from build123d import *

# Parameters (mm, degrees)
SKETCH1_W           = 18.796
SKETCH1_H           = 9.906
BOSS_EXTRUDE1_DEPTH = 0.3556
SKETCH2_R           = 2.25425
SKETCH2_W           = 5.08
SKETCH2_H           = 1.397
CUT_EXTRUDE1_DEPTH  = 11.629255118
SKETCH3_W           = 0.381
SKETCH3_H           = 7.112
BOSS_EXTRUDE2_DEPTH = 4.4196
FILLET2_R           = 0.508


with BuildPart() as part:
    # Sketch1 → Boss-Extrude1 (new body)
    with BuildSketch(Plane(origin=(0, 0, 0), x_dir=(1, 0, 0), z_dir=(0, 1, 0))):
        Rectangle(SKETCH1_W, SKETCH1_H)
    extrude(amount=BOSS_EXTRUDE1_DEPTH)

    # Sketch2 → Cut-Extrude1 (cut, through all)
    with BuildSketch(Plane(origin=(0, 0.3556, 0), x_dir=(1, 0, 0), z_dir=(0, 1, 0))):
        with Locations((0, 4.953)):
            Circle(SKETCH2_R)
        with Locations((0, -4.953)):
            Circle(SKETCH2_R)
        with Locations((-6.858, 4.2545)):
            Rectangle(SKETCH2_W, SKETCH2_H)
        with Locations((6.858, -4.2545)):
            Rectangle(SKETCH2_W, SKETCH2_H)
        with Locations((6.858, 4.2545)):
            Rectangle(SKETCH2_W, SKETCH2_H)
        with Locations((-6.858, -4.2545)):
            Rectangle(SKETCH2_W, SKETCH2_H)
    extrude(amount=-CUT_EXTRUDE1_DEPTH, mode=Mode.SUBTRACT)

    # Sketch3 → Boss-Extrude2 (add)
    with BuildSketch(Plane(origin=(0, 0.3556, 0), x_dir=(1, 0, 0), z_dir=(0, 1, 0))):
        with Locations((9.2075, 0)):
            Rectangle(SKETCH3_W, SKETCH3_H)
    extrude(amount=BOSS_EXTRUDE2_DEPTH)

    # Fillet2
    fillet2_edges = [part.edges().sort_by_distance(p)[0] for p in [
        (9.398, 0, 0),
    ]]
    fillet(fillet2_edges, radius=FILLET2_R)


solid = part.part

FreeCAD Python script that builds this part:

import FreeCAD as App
import Part
import Sketcher
from FreeCAD import Vector
Q = App.Units.Quantity


def edges_at(feature, points):
    """Names of the edges that pass closest to the given points."""
    edges = feature.Shape.Edges
    near = lambda p: min(range(len(edges)), key=lambda i: edges[i].distToShape(Part.Vertex(*p))[0])
    return sorted({f"Edge{near(p) + 1}" for p in points})

doc = App.newDocument("Part")
body = doc.addObject("PartDesign::Body", "Body")

# Sketch on XZ plane
sketch1 = body.newObject("Sketcher::SketchObject", "Sketch")
sketch1.AttachmentSupport = (doc.getObject("XZ_Plane"), [""])
sketch1.MapMode = "FlatFace"
sketch1.addGeometry([
    Part.LineSegment(Vector(-9, -5, 0), Vector(-9, 5, 0)),
    Part.LineSegment(Vector(-9, 5, 0), Vector(9, 5, 0)),
    Part.LineSegment(Vector(9, 5, 0), Vector(9, -5, 0)),
    Part.LineSegment(Vector(9, -5, 0), Vector(-9, -5, 0)),
], False)
sketch1.addConstraint([
    Sketcher.Constraint("Coincident", 0, 2, 1, 1),
    Sketcher.Constraint("Coincident", 1, 2, 2, 1),
    Sketcher.Constraint("Coincident", 2, 2, 3, 1),
    Sketcher.Constraint("Coincident", 3, 2, 0, 1),
    Sketcher.Constraint("Vertical", 0),
    Sketcher.Constraint("Horizontal", 1),
    Sketcher.Constraint("Vertical", 2),
    Sketcher.Constraint("Horizontal", 3),
    Sketcher.Constraint("Symmetric", 0, 2, 2, 2, -1, 1),
    Sketcher.Constraint("DistanceX", 1, 1, 1, 2, Q("0.74 in")),
    Sketcher.Constraint("DistanceY", 0, 1, 0, 2, Q("0.39 in")),
])
pad1 = body.newObject("PartDesign::Pad", "Pad")
pad1.Profile = sketch1
pad1.Length = Q("0.014 in")
pad1.Reversed = True

# Sketch on XZ plane
sketch2 = body.newObject("Sketcher::SketchObject", "Sketch001")
sketch2.AttachmentSupport = (doc.getObject("XZ_Plane"), [""])
sketch2.MapMode = "FlatFace"
sketch2.AttachmentOffset = App.Placement(Vector(0, 0, -0.014 * 25.4), App.Rotation())
sketch2.addGeometry([
    Part.Circle(Vector(0, -5, 0), Vector(0, 0, 1), 2.3),  # 0
    Part.Circle(Vector(0, 5, 0), Vector(0, 0, 1), 2.3),  # 1
    Part.LineSegment(Vector(-9.4, -5, 0), Vector(-9.4, -3.6, 0)),  # 2
    Part.LineSegment(Vector(-9.4, -3.6, 0), Vector(-4.3, -3.6, 0)),  # 3
    Part.LineSegment(Vector(-4.3, -3.6, 0), Vector(-4.3, -5, 0)),  # 4
    Part.LineSegment(Vector(-4.3, -5, 0), Vector(-9.4, -5, 0)),  # 5
    Part.LineSegment(Vector(4.3, 3.6, 0), Vector(4.3, 5, 0)),  # 6
    Part.LineSegment(Vector(4.3, 5, 0), Vector(9.4, 5, 0)),  # 7
    Part.LineSegment(Vector(9.4, 5, 0), Vector(9.4, 3.6, 0)),  # 8
    Part.LineSegment(Vector(9.4, 3.6, 0), Vector(4.3, 3.6, 0)),  # 9
    Part.LineSegment(Vector(4.3, -5, 0), Vector(4.3, -3.6, 0)),  # 10
    Part.LineSegment(Vector(4.3, -3.6, 0), Vector(9.4, -3.6, 0)),  # 11
    Part.LineSegment(Vector(9.4, -3.6, 0), Vector(9.4, -5, 0)),  # 12
    Part.LineSegment(Vector(9.4, -5, 0), Vector(4.3, -5, 0)),  # 13
    Part.LineSegment(Vector(-9.4, 3.6, 0), Vector(-9.4, 5, 0)),  # 14
    Part.LineSegment(Vector(-9.4, 5, 0), Vector(-4.3, 5, 0)),  # 15
    Part.LineSegment(Vector(-4.3, 5, 0), Vector(-4.3, 3.6, 0)),  # 16
    Part.LineSegment(Vector(-4.3, 3.6, 0), Vector(-9.4, 3.6, 0)),  # 17
], False)
sketch2.addConstraint([
    Sketcher.Constraint("Coincident", 2, 2, 3, 1),
    Sketcher.Constraint("Coincident", 3, 2, 4, 1),
    Sketcher.Constraint("Coincident", 4, 2, 5, 1),
    Sketcher.Constraint("Coincident", 5, 2, 2, 1),
    Sketcher.Constraint("Coincident", 6, 2, 7, 1),
    Sketcher.Constraint("Coincident", 7, 2, 8, 1),
    Sketcher.Constraint("Coincident", 8, 2, 9, 1),
    Sketcher.Constraint("Coincident", 9, 2, 6, 1),
    Sketcher.Constraint("Coincident", 10, 2, 11, 1),
    Sketcher.Constraint("Coincident", 11, 2, 12, 1),
    Sketcher.Constraint("Coincident", 12, 2, 13, 1),
    Sketcher.Constraint("Coincident", 13, 2, 10, 1),
    Sketcher.Constraint("Coincident", 14, 2, 15, 1),
    Sketcher.Constraint("Coincident", 15, 2, 16, 1),
    Sketcher.Constraint("Coincident", 16, 2, 17, 1),
    Sketcher.Constraint("Coincident", 17, 2, 14, 1),
    Sketcher.Constraint("Vertical", 2),
    Sketcher.Constraint("Horizontal", 3),
    Sketcher.Constraint("Vertical", 4),
    Sketcher.Constraint("Horizontal", 5),
    Sketcher.Constraint("Vertical", 6),
    Sketcher.Constraint("Horizontal", 7),
    Sketcher.Constraint("Vertical", 8),
    Sketcher.Constraint("Horizontal", 9),
    Sketcher.Constraint("Vertical", 10),
    Sketcher.Constraint("Horizontal", 11),
    Sketcher.Constraint("Vertical", 12),
    Sketcher.Constraint("Horizontal", 13),
    Sketcher.Constraint("Vertical", 14),
    Sketcher.Constraint("Horizontal", 15),
    Sketcher.Constraint("Vertical", 16),
    Sketcher.Constraint("Horizontal", 17),
    Sketcher.Constraint("Equal", 0, 1),
    Sketcher.Constraint("Symmetric", 0, 3, 1, 3, -1, 1),
    Sketcher.Constraint("Symmetric", 4, 2, 6, 2, -1, 1),
    Sketcher.Constraint("Symmetric", 2, 2, 8, 2, -1, 1),
    Sketcher.Constraint("Symmetric", 12, 2, 14, 2, -1, 1),
    Sketcher.Constraint("Symmetric", 10, 2, 16, 2, -1, 1),
    Sketcher.Constraint("Symmetric", 3, 2, 10, 2, -2),
    Sketcher.Constraint("Symmetric", 5, 2, 12, 2, -2),
    Sketcher.Constraint("PointOnObject", 0, 3, -2),
    Sketcher.Constraint("Horizontal", 0, 3, 4, 2),
    Sketcher.Constraint("DistanceX", 3, 1, 3, 2, Q("0.2 in")),
    Sketcher.Constraint("Diameter", 0, Q("0.1775 in")),
    Sketcher.Constraint("DistanceY", 2, 1, 2, 2, Q("0.055 in")),
    Sketcher.Constraint("DistanceX", 2, 2, -1, 1, Q("0.37 in")),
    Sketcher.Constraint("DistanceY", 2, 2, -1, 1, Q("0.14 in")),
])
pocket1 = body.newObject("PartDesign::Pocket", "Pocket")
pocket1.Profile = sketch2
pocket1.Type = "ThroughAll"
pocket1.Reversed = True

# Sketch on XZ plane
sketch3 = body.newObject("Sketcher::SketchObject", "Sketch002")
sketch3.AttachmentSupport = (doc.getObject("XZ_Plane"), [""])
sketch3.MapMode = "FlatFace"
sketch3.AttachmentOffset = App.Placement(Vector(0, 0, -0.014 * 25.4), App.Rotation())
sketch3.addGeometry([
    Part.LineSegment(Vector(9.02, -3.56, 0), Vector(9.02, 3.56, 0)),
    Part.LineSegment(Vector(9.02, 3.56, 0), Vector(9.4, 3.56, 0)),
    Part.LineSegment(Vector(9.4, 3.56, 0), Vector(9.4, -3.56, 0)),
    Part.LineSegment(Vector(9.4, -3.56, 0), Vector(9.02, -3.56, 0)),
], False)
sketch3.addConstraint([
    Sketcher.Constraint("Coincident", 0, 2, 1, 1),
    Sketcher.Constraint("Coincident", 1, 2, 2, 1),
    Sketcher.Constraint("Coincident", 2, 2, 3, 1),
    Sketcher.Constraint("Coincident", 3, 2, 0, 1),
    Sketcher.Constraint("Vertical", 0),
    Sketcher.Constraint("Horizontal", 1),
    Sketcher.Constraint("Vertical", 2),
    Sketcher.Constraint("Horizontal", 3),
    Sketcher.Constraint("DistanceY", 0, 1, 0, 2, Q("0.28 in")),
    Sketcher.Constraint("DistanceX", 1, 1, 1, 2, Q("0.015 in")),
    Sketcher.Constraint("DistanceY", -1, 1, 0, 2, Q("0.14 in")),
    Sketcher.Constraint("DistanceX", -1, 1, 1, 2, Q("0.37 in")),
])
pad2 = body.newObject("PartDesign::Pad", "Pad001")
pad2.Profile = sketch3
pad2.Length = Q("0.174 in")
pad2.Reversed = True
doc.recompute()

fillet = body.newObject("PartDesign::Fillet", "Fillet")
fillet.Base = (pad2, edges_at(pad2, [(9.398, 0, 0)]))
fillet.Radius = Q("0.02 in")

doc.recompute()
